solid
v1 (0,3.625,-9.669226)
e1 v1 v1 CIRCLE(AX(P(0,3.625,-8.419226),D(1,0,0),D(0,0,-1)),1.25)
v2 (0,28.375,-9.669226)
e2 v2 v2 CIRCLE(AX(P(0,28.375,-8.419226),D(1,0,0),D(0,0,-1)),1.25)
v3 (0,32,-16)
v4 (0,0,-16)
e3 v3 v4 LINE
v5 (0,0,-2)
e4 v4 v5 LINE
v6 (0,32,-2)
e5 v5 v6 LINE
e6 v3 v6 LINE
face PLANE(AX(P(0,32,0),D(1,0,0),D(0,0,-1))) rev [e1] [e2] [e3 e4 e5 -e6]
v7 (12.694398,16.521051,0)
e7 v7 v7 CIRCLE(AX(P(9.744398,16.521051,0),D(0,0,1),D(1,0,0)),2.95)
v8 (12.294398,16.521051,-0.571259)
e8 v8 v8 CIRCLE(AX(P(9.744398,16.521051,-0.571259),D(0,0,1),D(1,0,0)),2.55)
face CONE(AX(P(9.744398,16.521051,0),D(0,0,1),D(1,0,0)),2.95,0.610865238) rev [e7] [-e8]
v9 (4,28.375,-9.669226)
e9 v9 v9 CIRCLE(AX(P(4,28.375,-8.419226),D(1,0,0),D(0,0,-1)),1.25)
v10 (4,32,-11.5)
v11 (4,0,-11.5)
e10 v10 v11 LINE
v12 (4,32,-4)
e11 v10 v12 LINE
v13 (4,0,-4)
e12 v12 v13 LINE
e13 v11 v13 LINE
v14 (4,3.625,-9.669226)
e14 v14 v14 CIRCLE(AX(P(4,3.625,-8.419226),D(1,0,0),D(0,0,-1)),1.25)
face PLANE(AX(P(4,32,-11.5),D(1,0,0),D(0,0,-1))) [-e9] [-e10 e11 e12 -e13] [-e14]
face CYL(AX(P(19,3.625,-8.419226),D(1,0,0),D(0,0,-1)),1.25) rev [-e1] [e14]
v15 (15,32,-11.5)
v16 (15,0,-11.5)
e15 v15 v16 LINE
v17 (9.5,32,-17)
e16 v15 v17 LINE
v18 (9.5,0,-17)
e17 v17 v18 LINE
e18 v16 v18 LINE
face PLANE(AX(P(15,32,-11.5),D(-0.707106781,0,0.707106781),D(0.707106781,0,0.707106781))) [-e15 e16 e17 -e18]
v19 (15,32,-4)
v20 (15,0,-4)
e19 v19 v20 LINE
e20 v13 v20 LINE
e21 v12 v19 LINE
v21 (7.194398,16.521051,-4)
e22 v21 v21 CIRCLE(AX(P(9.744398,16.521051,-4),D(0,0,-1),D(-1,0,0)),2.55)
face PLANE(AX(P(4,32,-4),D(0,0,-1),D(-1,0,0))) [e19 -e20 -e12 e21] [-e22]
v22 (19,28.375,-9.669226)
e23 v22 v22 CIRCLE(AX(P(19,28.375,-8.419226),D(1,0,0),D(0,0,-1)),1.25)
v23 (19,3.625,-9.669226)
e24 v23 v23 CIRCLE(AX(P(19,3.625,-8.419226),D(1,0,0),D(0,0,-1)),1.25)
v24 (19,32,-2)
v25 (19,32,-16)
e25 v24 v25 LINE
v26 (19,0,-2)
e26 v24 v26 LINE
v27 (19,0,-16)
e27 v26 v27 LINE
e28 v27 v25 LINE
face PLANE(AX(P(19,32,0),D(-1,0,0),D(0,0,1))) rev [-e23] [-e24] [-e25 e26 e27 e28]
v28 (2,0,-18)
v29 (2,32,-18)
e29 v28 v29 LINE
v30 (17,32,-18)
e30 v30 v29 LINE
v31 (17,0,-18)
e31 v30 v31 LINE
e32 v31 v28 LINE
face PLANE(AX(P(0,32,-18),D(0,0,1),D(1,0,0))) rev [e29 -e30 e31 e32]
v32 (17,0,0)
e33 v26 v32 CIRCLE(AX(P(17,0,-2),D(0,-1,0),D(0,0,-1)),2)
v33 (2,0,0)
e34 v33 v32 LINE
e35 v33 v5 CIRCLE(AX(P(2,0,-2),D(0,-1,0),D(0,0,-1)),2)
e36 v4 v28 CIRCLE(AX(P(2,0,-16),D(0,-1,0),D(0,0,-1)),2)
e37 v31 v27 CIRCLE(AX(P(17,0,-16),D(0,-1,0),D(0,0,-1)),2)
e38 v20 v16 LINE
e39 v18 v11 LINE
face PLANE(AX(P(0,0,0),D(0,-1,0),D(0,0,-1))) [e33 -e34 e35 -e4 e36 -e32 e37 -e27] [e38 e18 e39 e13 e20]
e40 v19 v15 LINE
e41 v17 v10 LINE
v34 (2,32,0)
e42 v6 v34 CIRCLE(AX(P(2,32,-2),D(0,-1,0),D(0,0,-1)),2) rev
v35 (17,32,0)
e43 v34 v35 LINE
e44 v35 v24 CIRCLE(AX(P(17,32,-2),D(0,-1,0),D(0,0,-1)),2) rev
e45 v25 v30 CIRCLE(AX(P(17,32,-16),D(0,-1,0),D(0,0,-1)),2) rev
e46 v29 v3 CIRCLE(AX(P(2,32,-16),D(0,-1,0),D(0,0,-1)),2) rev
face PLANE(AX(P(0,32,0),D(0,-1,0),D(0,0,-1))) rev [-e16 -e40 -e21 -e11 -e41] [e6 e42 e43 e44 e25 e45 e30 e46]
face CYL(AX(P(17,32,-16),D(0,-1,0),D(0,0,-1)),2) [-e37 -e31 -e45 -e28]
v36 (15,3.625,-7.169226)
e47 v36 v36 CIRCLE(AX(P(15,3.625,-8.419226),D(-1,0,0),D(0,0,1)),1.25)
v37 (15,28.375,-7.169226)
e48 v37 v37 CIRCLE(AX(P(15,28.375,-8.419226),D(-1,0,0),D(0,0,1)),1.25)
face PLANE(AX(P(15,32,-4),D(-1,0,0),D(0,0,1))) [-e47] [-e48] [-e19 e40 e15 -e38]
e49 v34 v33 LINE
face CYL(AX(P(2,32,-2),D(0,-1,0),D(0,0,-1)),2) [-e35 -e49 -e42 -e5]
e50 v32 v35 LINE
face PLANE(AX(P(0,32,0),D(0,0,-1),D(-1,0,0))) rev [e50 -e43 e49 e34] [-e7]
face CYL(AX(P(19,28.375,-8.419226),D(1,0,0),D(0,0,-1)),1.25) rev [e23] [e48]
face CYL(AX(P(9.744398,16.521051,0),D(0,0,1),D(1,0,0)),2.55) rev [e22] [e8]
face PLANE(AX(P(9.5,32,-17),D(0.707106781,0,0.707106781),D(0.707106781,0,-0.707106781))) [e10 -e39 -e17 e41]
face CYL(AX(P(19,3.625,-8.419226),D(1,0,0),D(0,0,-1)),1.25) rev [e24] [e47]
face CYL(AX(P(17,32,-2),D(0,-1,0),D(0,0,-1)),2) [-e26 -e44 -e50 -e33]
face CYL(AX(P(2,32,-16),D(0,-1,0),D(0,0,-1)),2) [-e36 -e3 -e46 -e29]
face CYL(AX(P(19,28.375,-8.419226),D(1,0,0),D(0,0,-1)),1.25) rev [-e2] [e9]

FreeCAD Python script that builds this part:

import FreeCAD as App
import Part
import Sketcher
from FreeCAD import Vector
Q = App.Units.Quantity


def edges_at(feature, points):
    """Names of the edges that pass closest to the given points."""
    edges = feature.Shape.Edges
    near = lambda p: min(range(len(edges)), key=lambda i: edges[i].distToShape(Part.Vertex(*p))[0])
    return sorted({f"Edge{near(p) + 1}" for p in points})


def add_polygon(sketch, points):
    """Adds a closed chain of lines whose ends are joined by coincident constraints."""
    first, n = sketch.GeometryCount, len(points)
    for a, b in zip(points, points[1:] + points[:1]):
        sketch.addGeometry(Part.LineSegment(App.Vector(*a, 0), App.Vector(*b, 0)), False)
    for i in range(n):
        sketch.addConstraint(Sketcher.Constraint("Coincident", first + i, 2, first + (i + 1) % n, 1))

doc = App.newDocument("Part")
body = doc.addObject("PartDesign::Body", "Body")

# Sketch on XZ plane
sketch1 = doc.addObject("Sketcher::SketchObject", "Sketch")
body.addObject(sketch1)
sketch1.AttachmentSupport = (doc.XZ_Plane, [""])
sketch1.MapMode = "FlatFace"
add_polygon(sketch1, [(0, -18), (0, 0), (19, 0), (19, -18)])  # lines 0-3
add_polygon(sketch1, [(15, -4), (4, -4), (4, -12), (10, -17), (15, -12)])  # lines 4-8
sketch1.addConstraint(Sketcher.Constraint("Vertical", 0))
sketch1.addConstraint(Sketcher.Constraint("Horizontal", 1))
sketch1.addConstraint(Sketcher.Constraint("Vertical", 2))
sketch1.addConstraint(Sketcher.Constraint("Horizontal", 3))
sketch1.addConstraint(Sketcher.Constraint("Horizontal", 4))
sketch1.addConstraint(Sketcher.Constraint("Vertical", 5))
sketch1.addConstraint(Sketcher.Constraint("Vertical", 8))
sketch1.addConstraint(Sketcher.Constraint("Coincident", 0, 2, -1, 1))
sketch1.addConstraint(Sketcher.Constraint("Perpendicular", 6, 7))
sketch1.addConstraint(Sketcher.Constraint("Horizontal", 5, 2, 7, 2))
sketch1.addConstraint(Sketcher.Constraint("Equal", 6, 7))
sketch1.addConstraint(Sketcher.Constraint("DistanceX", 1, 1, 1, 2, Q("19 mm")))
sketch1.addConstraint(Sketcher.Constraint("DistanceX", 4, 2, 4, 1, Q("11 mm")))
sketch1.addConstraint(Sketcher.Constraint("DistanceY", 0, 1, 0, 2, Q("18 mm")))
sketch1.addConstraint(Sketcher.Constraint("DistanceY", 5, 2, 5, 1, Q("7.5 mm")))
sketch1.addConstraint(Sketcher.Constraint("DistanceX", -1, 1, 4, 2, Q("4 mm")))
sketch1.addConstraint(Sketcher.Constraint("DistanceY", 4, 2, -1, 1, Q("4 mm")))
pad1 = doc.addObject("PartDesign::Pad", "Pad")
body.addObject(pad1)
pad1.Profile = sketch1
pad1.Length = 32
pad1.Reversed = True

# Sketch on YZ plane
sketch2 = doc.addObject("Sketcher::SketchObject", "Sketch001")
body.addObject(sketch2)
sketch2.AttachmentSupport = (doc.YZ_Plane, [""])
sketch2.MapMode = "FlatFace"
sketch2.AttachmentOffset = App.Placement(Vector(0, 0, 19), App.Rotation())
sketch2.addGeometry(Part.Circle(Vector(28.4, -8.4, 0), Vector(0, 0, 1), 1.2), False)
sketch2.addGeometry(Part.Circle(Vector(3.6, -8.4, 0), Vector(0, 0, 1), 1.2), False)
sketch2.addConstraint(Sketcher.Constraint("Equal", 0, 1))
sketch2.addConstraint(Sketcher.Constraint("Horizontal", 0, 3, 1, 3))
sketch2.addConstraint(Sketcher.Constraint("Diameter", 0, Q("2.5 mm")))
sketch2.addConstraint(Sketcher.Constraint("DistanceX", 1, 3, 0, 3, Q("24.75 mm")))
sketch2.addConstraint(Sketcher.Constraint("DistanceX", -1, 1, 0, 3, Q("28.375 mm")))
sketch2.addConstraint(Sketcher.Constraint("DistanceY", 0, 3, -1, 1, Q("8.419226 mm")))
doc.recompute()
hole = doc.addObject("PartDesign::Hole", "Hole")
body.addObject(hole)
hole.Profile = sketch2
hole.ThreadType = "None"
hole.Diameter = 2.5
hole.DepthType = "ThroughAll"
doc.recompute()

fillet = doc.addObject("PartDesign::Fillet", "Fillet")
body.addObject(fillet)
fillet.Base = (hole, edges_at(hole, [
    (0, 16, -18),
    (19, 16, -18),
    (19, 16, 0),
    (0, 16, 0),
]))
fillet.Radius = 2

# Sketch on YZ plane
sketch3 = doc.addObject("Sketcher::SketchObject", "Sketch002")
body.addObject(sketch3)
sketch3.AttachmentSupport = (doc.YZ_Plane, [""])
sketch3.MapMode = "FlatFace"
sketch3.AttachmentOffset = App.Placement(Vector(0, 0, 9.744398), App.Rotation())
add_polygon(sketch3, [(16.5, -4), (16.5, 0), (13.6, 0), (14, -0.6), (14, -4)])  # lines 0-4
sketch3.addGeometry(Part.LineSegment(Vector(16.5, 0, 0), Vector(16.5, -4, 0)), True)  # axis
sketch3.addConstraint(Sketcher.Constraint("Vertical", 0))
sketch3.addConstraint(Sketcher.Constraint("Horizontal", 1))
sketch3.addConstraint(Sketcher.Constraint("Vertical", 3))
sketch3.addConstraint(Sketcher.Constraint("Horizontal", 4))
sketch3.addConstraint(Sketcher.Constraint("Vertical", 5))
sketch3.addConstraint(Sketcher.Constraint("Coincident", 5, 1, 0, 2))
sketch3.addConstraint(Sketcher.Constraint("PointOnObject", 0, 2, -1))
sketch3.addConstraint(Sketcher.Constraint("Horizontal", 3, 2, 5, 2))
sketch3.addConstraint(Sketcher.Constraint("DistanceY", 0, 1, 0, 2, Q("4 mm")))
sketch3.addConstraint(Sketcher.Constraint("Angle", 2, Q("-55 deg")))
sketch3.addConstraint(Sketcher.Constraint("DistanceX", 1, 2, 1, 1, Q("2.95 mm")))
sketch3.addConstraint(Sketcher.Constraint("DistanceX", 4, 1, 4, 2, Q("2.55 mm")))
sketch3.addConstraint(Sketcher.Constraint("DistanceX", -1, 1, 0, 2, Q("16.521051 mm")))
groove = doc.addObject("PartDesign::Groove", "Groove")
body.addObject(groove)
groove.Profile = sketch3
groove.ReferenceAxis = (sketch3, ["Axis0"])
groove.Angle = 360

doc.recompute()
